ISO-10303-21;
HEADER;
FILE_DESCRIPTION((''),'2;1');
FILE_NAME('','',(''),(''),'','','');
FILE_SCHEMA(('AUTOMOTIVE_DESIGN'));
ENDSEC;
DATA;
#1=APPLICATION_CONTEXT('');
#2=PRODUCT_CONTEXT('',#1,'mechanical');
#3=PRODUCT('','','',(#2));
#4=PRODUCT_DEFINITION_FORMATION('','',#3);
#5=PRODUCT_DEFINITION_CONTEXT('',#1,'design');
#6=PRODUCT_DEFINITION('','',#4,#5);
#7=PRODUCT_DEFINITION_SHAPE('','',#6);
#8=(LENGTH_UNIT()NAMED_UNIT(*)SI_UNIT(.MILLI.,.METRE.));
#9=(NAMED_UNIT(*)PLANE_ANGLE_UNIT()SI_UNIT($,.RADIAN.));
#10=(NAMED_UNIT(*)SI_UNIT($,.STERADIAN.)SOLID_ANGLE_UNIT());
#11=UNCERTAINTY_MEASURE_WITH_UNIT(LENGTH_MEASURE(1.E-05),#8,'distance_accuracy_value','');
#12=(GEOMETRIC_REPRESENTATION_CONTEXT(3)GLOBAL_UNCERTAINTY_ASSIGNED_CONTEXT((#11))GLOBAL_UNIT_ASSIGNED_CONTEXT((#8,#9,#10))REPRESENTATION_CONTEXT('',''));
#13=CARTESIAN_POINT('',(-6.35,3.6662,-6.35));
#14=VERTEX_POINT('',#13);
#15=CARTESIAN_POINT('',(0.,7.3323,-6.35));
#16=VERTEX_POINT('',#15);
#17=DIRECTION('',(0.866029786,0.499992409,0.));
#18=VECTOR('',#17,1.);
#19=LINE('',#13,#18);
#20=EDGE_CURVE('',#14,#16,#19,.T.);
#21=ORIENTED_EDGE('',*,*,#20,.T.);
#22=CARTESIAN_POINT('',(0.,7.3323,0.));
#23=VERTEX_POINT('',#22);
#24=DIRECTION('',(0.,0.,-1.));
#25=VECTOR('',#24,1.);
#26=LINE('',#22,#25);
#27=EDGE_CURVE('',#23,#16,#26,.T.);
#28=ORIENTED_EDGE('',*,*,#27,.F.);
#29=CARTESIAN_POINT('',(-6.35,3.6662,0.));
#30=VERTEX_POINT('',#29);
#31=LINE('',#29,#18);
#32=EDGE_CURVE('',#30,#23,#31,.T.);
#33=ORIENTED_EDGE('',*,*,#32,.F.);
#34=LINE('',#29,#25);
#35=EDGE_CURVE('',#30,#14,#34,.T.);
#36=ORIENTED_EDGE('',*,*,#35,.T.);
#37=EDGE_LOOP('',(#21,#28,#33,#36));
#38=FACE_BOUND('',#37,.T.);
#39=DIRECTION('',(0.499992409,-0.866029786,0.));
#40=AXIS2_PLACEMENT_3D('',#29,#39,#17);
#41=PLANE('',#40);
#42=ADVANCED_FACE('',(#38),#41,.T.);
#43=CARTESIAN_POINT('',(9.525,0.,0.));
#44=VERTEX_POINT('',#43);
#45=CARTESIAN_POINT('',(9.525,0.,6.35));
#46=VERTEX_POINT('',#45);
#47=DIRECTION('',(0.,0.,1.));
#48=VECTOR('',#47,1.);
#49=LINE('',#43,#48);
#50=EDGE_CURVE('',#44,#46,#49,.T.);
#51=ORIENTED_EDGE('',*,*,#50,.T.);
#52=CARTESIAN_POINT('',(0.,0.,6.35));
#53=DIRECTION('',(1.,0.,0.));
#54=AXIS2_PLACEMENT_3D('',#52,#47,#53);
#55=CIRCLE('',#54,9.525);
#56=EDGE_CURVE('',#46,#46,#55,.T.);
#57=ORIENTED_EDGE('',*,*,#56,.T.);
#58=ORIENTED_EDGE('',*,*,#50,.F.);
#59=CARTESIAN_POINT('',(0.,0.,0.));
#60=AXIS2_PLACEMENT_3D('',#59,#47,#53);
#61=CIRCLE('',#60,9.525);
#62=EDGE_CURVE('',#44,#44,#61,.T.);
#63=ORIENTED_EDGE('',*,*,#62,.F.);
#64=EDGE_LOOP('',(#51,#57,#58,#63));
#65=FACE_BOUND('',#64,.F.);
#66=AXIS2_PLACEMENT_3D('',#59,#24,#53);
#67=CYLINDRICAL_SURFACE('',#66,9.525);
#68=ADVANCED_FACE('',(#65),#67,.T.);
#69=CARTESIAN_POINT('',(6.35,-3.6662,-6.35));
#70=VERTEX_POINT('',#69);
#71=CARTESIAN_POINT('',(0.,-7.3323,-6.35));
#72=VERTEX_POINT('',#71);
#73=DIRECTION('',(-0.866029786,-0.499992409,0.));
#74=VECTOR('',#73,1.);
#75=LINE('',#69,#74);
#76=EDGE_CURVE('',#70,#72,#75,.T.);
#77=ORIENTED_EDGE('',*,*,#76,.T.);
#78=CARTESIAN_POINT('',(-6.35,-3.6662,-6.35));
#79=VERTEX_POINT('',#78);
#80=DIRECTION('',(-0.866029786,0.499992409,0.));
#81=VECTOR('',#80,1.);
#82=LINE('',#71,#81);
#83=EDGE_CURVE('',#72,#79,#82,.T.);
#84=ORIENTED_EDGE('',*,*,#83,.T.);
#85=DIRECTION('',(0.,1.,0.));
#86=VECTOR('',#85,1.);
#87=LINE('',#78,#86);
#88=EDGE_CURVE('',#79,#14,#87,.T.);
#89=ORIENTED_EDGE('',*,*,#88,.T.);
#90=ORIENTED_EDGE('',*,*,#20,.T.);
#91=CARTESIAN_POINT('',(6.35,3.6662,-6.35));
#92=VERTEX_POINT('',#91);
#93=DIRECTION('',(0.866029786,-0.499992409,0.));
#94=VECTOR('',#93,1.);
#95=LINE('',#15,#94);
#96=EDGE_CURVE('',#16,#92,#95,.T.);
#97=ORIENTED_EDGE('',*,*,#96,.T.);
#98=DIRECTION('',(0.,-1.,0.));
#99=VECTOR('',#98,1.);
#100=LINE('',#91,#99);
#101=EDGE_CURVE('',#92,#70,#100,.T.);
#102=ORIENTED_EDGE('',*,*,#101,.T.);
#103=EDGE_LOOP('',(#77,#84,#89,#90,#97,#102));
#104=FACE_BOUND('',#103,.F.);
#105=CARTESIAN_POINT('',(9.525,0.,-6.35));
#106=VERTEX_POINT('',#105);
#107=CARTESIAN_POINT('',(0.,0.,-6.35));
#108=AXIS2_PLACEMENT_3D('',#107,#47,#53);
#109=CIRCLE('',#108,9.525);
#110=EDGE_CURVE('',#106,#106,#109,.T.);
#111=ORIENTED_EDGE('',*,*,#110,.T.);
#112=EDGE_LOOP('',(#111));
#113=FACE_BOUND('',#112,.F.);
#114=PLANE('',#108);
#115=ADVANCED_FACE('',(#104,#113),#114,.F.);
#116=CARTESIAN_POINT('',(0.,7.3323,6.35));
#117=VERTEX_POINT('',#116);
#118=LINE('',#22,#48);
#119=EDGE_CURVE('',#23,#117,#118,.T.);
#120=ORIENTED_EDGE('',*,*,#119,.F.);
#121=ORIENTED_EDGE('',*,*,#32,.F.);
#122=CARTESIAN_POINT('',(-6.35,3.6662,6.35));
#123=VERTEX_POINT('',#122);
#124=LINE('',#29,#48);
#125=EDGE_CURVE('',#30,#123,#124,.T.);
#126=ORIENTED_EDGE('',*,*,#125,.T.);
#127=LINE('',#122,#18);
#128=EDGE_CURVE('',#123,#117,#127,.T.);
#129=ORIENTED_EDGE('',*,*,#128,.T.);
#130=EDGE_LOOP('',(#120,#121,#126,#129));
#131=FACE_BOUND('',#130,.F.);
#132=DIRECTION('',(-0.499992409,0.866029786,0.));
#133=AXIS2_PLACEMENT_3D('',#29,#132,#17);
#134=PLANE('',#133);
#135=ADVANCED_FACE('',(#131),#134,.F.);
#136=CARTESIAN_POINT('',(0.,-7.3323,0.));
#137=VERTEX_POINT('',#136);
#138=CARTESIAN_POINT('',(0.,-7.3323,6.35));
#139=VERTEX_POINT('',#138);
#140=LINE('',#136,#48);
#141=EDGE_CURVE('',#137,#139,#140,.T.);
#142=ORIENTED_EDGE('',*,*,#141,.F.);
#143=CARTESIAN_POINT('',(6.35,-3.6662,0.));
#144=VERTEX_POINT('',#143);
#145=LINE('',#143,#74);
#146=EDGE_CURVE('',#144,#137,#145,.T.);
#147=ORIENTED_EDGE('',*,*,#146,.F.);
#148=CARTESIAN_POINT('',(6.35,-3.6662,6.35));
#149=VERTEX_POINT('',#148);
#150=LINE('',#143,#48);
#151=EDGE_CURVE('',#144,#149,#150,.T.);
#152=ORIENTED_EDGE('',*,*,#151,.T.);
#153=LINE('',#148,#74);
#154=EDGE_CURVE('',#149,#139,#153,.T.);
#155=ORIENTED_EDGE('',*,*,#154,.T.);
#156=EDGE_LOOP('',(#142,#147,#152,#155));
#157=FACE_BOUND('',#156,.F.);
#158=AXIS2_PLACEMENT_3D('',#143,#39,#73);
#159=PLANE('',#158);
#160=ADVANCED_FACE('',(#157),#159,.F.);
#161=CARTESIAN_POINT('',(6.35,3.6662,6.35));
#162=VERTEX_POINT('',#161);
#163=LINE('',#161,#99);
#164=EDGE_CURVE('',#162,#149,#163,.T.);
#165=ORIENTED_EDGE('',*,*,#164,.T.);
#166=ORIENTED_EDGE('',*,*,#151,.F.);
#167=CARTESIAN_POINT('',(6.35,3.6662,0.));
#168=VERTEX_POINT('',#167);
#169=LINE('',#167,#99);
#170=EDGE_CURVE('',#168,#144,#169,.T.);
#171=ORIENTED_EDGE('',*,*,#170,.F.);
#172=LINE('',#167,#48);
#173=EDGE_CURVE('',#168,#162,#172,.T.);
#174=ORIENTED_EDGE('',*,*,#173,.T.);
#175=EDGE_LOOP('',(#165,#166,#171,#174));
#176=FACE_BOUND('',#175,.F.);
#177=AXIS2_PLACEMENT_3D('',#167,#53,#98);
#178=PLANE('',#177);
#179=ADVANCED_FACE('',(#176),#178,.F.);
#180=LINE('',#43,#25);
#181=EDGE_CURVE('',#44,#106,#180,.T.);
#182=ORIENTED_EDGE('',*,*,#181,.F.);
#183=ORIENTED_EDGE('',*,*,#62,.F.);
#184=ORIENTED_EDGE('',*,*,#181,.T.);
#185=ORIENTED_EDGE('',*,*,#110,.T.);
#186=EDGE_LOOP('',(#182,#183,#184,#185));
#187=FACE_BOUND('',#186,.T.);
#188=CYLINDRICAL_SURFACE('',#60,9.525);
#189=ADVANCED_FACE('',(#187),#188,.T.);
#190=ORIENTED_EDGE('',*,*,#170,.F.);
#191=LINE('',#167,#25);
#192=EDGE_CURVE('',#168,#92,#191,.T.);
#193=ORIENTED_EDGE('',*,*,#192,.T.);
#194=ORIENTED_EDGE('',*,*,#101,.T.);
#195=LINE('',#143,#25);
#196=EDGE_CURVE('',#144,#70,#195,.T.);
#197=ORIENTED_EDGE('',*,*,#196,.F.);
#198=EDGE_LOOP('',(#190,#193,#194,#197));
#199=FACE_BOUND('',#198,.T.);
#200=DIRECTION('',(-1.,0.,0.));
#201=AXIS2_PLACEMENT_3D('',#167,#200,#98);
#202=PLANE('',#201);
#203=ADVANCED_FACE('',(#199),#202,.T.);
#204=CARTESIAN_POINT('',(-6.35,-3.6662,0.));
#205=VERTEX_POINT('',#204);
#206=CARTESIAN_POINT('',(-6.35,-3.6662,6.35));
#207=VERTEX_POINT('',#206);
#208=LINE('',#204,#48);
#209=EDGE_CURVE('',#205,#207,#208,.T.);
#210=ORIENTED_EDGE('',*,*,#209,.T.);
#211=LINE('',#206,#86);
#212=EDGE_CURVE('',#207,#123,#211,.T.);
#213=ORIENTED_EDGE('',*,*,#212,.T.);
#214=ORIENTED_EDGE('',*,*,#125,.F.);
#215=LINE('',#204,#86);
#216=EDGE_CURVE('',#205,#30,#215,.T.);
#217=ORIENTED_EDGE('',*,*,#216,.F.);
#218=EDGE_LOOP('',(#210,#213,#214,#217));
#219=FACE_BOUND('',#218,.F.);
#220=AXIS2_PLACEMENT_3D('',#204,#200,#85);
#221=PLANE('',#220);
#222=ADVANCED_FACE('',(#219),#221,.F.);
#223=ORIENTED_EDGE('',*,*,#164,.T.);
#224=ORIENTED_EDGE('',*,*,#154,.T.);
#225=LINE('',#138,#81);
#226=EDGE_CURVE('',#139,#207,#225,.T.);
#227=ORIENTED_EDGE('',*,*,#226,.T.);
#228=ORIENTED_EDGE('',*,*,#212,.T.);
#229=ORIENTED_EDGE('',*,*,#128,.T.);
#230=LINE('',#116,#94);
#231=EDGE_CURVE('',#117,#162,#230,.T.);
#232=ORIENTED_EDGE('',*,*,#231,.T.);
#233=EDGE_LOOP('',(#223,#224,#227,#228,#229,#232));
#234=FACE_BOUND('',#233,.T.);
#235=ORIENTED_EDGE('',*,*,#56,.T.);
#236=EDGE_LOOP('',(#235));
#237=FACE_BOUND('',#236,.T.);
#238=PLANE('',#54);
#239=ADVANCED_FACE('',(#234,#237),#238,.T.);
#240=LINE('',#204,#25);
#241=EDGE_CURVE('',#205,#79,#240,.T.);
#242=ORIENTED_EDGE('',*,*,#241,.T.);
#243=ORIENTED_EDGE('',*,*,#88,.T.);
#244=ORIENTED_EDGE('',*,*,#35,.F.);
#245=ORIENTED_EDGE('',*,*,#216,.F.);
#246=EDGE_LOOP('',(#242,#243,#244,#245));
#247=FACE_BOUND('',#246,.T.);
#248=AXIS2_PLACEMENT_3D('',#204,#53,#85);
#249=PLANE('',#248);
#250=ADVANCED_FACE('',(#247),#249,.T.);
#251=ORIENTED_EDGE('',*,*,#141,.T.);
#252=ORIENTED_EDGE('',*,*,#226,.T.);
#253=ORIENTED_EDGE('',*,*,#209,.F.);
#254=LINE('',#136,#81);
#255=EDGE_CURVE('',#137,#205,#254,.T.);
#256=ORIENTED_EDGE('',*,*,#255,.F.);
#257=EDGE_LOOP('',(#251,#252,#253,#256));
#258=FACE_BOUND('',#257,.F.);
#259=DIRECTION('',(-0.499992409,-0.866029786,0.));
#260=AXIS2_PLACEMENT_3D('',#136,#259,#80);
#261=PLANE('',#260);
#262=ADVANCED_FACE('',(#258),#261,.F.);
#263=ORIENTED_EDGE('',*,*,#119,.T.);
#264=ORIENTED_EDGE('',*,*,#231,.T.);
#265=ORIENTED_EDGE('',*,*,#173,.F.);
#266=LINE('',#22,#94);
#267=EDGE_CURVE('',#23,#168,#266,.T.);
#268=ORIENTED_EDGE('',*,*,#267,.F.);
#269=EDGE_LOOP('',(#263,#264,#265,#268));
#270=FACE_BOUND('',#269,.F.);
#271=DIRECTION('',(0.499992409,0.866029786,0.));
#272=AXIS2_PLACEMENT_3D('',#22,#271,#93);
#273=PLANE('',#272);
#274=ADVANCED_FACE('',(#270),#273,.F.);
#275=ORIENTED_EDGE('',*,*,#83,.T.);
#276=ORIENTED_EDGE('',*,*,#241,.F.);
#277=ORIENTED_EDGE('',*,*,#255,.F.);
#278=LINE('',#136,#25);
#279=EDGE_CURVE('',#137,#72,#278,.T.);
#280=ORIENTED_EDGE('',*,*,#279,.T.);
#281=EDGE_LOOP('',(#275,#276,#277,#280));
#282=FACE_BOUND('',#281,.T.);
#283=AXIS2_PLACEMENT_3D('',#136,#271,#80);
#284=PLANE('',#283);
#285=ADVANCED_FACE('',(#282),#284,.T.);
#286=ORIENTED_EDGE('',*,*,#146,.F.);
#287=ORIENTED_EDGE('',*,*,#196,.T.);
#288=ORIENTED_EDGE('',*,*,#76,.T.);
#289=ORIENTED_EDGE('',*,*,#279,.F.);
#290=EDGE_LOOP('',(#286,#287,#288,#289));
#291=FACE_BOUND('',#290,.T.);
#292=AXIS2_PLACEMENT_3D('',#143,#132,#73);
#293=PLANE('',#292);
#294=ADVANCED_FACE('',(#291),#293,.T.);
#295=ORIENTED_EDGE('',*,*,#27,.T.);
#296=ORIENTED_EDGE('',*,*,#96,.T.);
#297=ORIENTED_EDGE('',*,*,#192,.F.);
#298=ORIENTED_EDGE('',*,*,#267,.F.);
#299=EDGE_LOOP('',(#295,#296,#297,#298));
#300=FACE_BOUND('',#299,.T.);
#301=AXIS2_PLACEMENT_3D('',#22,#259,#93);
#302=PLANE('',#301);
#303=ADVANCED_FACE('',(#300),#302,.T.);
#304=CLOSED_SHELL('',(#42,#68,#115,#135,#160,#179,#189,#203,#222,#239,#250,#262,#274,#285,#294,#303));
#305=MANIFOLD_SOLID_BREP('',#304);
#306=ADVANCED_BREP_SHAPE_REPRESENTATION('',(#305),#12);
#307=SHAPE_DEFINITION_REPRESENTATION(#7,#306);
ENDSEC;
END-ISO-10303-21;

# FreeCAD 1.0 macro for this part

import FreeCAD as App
import Part
import Sketcher
from FreeCAD import Vector
Q = App.Units.Quantity


def add_polygon(sketch, points):
    """Adds a closed chain of lines whose ends are joined by coincident constraints."""
    first, n = sketch.GeometryCount, len(points)
    for a, b in zip(points, points[1:] + points[:1]):
        sketch.addGeometry(Part.LineSegment(App.Vector(*a, 0), App.Vector(*b, 0)), False)
    for i in range(n):
        sketch.addConstraint(Sketcher.Constraint("Coincident", first + i, 2, first + (i + 1) % n, 1))

doc = App.newDocument("Part")
body = doc.addObject("PartDesign::Body", "Body")

# Sketch on XY plane
sketch1 = body.newObject("Sketcher::SketchObject", "Sketch")
sketch1.AttachmentSupport = (doc.getObject("XY_Plane"), [""])
sketch1.MapMode = "FlatFace"
sketch1.addGeometry(Part.Circle(Vector(0, 0, 0), Vector(0, 0, 1), 10), False)  # 0
add_polygon(sketch1, [(6, -4), (0, -7), (-6, -4), (-6, 4), (0, 7), (6, 4)])  # lines 1-6
sketch1.addConstraint(Sketcher.Constraint("Vertical", 3))
sketch1.addConstraint(Sketcher.Constraint("Vertical", 6))
sketch1.addConstraint(Sketcher.Constraint("Coincident", 0, 3, -1, 1))
sketch1.addConstraint(Sketcher.Constraint("Symmetric", 1, 2, 4, 2, -1, 1))
sketch1.addConstraint(Sketcher.Constraint("Symmetric", 2, 2, 5, 2, -1, 1))
sketch1.addConstraint(Sketcher.Constraint("PointOnObject", 1, 2, -2))
sketch1.addConstraint(Sketcher.Constraint("Parallel", 1, 4))
sketch1.addConstraint(Sketcher.Constraint("Horizontal", 3, 2, 5, 2))
sketch1.addConstraint(Sketcher.Constraint("Diameter", 0, Q("0.75 in")))
sketch1.addConstraint(Sketcher.Constraint("DistanceX", 3, 2, 5, 2, Q("0.5 in")))
sketch1.addConstraint(Sketcher.Constraint("Angle", 1, Q("-150.0005 deg")))
sketch1.addConstraint(Sketcher.Constraint("DistanceY", 1, 2, 3, 2, Q("0.433 in")))
pad1 = body.newObject("PartDesign::Pad", "Pad")
pad1.Profile = sketch1
pad1.Length = Q("0.5 in")
pad1.Midplane = True

doc.recompute()
